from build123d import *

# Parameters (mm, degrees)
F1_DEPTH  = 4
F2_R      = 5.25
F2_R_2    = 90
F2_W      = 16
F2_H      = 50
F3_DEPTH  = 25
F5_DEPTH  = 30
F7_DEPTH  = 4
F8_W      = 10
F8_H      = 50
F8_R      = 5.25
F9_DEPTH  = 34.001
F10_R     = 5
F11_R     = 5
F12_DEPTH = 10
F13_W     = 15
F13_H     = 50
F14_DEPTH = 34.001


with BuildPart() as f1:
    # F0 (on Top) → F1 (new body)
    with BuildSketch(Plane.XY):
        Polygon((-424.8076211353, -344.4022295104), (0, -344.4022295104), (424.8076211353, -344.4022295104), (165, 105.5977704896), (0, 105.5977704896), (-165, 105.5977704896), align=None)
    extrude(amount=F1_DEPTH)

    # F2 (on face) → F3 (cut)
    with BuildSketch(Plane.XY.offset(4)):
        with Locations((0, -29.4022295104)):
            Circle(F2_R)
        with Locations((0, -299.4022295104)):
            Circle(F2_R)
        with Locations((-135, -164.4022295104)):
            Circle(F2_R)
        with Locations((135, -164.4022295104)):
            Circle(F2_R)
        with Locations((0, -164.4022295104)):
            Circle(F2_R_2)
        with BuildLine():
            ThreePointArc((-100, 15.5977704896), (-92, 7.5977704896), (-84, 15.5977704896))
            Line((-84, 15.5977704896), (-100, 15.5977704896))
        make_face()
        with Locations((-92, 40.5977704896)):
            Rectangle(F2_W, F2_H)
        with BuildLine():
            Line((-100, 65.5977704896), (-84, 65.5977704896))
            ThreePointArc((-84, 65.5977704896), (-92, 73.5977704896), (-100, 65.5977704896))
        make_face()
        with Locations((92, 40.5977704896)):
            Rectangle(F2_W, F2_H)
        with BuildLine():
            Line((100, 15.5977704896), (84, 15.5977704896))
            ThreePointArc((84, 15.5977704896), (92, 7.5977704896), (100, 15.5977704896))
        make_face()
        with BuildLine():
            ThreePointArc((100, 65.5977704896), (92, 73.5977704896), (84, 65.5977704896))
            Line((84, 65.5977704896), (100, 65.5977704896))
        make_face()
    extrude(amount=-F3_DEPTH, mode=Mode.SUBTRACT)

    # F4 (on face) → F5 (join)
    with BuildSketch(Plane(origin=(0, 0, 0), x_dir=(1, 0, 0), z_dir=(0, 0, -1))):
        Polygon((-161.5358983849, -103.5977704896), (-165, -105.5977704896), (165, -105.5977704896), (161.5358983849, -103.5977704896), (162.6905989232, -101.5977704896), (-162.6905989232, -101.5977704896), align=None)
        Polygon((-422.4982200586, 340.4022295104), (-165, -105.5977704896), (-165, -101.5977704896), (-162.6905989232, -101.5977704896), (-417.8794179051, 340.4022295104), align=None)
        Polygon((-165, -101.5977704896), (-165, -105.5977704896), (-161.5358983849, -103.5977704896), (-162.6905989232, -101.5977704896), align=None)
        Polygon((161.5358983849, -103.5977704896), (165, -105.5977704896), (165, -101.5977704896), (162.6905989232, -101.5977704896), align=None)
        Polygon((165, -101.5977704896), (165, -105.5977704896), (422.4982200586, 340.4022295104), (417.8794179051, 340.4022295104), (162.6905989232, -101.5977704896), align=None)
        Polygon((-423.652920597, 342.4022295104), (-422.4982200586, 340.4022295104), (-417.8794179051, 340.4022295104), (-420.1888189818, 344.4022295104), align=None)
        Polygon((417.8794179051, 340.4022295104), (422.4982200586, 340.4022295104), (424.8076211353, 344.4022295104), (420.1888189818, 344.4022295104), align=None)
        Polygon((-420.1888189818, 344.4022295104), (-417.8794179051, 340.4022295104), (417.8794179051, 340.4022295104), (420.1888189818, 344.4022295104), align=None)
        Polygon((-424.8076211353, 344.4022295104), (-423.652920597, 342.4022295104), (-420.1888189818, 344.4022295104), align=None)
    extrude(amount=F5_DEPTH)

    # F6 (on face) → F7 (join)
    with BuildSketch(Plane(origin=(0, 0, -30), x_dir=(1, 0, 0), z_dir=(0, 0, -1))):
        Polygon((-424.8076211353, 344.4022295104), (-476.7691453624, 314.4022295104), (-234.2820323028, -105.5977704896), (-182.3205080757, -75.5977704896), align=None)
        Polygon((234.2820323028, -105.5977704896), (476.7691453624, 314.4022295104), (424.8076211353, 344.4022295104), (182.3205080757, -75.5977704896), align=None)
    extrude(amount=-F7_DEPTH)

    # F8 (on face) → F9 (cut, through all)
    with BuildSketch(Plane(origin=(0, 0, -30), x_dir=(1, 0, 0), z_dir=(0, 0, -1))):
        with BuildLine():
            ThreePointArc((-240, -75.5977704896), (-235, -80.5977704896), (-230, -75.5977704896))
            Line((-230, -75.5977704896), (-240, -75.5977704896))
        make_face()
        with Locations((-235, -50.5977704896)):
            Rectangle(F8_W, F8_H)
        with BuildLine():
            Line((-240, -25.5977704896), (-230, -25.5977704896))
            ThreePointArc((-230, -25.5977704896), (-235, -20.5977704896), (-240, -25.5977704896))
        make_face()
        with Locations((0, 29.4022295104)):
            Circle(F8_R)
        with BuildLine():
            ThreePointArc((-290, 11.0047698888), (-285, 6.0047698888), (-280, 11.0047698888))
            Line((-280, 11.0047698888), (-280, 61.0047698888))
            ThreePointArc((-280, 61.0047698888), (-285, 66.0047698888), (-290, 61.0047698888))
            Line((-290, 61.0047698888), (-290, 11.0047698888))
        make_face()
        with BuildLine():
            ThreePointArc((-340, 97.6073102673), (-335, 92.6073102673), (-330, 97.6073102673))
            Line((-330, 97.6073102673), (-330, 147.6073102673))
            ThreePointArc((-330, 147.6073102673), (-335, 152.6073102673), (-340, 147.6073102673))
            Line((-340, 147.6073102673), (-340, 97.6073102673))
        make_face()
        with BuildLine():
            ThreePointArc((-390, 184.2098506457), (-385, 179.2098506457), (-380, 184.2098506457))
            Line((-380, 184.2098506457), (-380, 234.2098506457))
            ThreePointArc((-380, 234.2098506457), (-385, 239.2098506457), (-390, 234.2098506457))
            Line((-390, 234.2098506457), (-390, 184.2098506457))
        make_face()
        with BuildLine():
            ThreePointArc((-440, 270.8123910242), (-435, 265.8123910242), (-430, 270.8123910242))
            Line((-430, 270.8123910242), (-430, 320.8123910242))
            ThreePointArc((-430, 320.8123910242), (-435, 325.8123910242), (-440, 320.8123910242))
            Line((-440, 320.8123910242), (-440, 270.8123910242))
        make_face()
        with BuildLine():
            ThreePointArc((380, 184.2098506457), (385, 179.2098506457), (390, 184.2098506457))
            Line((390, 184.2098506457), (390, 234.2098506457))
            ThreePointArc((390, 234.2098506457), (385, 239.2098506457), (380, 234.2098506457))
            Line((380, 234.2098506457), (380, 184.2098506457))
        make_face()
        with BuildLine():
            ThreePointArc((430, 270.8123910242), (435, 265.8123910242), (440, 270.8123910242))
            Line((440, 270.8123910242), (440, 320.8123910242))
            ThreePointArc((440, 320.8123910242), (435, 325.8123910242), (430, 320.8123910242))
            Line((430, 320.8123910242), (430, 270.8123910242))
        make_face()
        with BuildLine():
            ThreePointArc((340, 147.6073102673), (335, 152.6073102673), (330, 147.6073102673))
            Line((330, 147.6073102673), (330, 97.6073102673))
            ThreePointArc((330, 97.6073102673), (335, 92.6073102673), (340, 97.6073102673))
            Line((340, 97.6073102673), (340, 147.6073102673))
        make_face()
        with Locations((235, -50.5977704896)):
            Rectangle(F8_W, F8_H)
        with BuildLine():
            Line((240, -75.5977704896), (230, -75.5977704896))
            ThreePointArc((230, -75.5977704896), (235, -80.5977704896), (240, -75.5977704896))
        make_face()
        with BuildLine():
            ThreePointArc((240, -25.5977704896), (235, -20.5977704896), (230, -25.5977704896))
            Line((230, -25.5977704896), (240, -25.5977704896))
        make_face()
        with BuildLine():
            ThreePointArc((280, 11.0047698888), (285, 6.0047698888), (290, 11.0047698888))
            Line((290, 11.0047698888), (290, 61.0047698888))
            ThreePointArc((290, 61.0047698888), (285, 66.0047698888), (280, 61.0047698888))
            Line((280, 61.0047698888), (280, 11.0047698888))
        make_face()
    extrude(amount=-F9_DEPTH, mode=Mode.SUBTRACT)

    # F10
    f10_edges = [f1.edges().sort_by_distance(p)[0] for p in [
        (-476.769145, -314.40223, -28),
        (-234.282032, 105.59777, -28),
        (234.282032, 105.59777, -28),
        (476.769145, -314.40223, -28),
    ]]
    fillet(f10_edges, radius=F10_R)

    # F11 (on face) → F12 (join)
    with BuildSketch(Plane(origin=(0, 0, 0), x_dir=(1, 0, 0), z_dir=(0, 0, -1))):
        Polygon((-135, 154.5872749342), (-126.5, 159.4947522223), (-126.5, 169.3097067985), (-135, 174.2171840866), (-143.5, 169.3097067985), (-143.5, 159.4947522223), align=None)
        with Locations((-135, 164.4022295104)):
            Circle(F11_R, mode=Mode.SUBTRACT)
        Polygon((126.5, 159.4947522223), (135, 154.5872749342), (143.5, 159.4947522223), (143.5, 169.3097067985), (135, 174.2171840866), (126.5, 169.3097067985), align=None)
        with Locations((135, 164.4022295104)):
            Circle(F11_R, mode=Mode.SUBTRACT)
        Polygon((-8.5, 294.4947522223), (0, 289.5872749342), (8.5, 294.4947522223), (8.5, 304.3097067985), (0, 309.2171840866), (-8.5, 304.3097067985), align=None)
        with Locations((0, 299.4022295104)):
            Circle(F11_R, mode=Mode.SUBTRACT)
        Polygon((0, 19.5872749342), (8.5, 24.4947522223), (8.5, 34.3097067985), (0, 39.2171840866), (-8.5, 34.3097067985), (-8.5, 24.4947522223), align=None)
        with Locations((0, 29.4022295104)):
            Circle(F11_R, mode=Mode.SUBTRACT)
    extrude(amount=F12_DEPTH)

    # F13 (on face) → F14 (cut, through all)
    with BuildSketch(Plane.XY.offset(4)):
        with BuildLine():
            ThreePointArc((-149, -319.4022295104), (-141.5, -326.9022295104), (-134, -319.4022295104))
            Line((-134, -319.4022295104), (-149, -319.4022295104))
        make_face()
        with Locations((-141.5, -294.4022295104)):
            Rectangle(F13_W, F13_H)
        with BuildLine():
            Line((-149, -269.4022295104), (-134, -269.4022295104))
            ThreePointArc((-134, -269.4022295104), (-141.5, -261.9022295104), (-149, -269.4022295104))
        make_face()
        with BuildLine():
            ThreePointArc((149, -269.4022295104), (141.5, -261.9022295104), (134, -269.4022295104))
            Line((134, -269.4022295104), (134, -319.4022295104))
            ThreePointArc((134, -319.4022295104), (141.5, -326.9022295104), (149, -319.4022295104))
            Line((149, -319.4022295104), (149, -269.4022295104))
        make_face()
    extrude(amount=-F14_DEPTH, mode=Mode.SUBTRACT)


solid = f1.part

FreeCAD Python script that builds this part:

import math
import FreeCAD as App
import Part
import Sketcher
Q = App.Units.Quantity


def edges_at(feature, points):
    """Names of the edges that pass closest to the given points."""
    edges = feature.Shape.Edges
    near = lambda p: min(range(len(edges)), key=lambda i: edges[i].distToShape(Part.Vertex(*p))[0])
    return sorted({f"Edge{near(p) + 1}" for p in points})


def add_polygon(sketch, points):
    """Adds a closed chain of lines whose ends are joined by coincident constraints."""
    first, n = sketch.GeometryCount, len(points)
    for a, b in zip(points, points[1:] + points[:1]):
        sketch.addGeometry(Part.LineSegment(App.Vector(*a, 0), App.Vector(*b, 0)), False)
    for i in range(n):
        sketch.addConstraint(Sketcher.Constraint("Coincident", first + i, 2, first + (i + 1) % n, 1))

doc = App.newDocument("Part")
body = doc.addObject("PartDesign::Body", "Body")

# Sketch on XY plane
sketch1 = body.newObject("Sketcher::SketchObject", "Sketch")
sketch1.AttachmentSupport = (doc.getObject("XY_Plane"), [""])
sketch1.MapMode = "FlatFace"
add_polygon(sketch1, [(-425, -344), (425, -344), (165, 106), (-165, 106)])  # lines 0-3
sketch1.addConstraint([
    Sketcher.Constraint("Horizontal", 0),
    Sketcher.Constraint("Horizontal", 2),
    Sketcher.Constraint("Equal", 1, 3),
    Sketcher.Constraint("DistanceX", 2, 2, 2, 1, 330.0),
    Sketcher.Constraint("Angle", 1, Q("120 deg")),
    Sketcher.Constraint("DistanceX", -1, 1, 1, 2, 165.0),
    Sketcher.Constraint("DistanceY", 0, 2, 1, 2, 450.0),
    Sketcher.Constraint("DistanceY", 0, 2, -1, 1, 344.40223),
])
pad1 = body.newObject("PartDesign::Pad", "Pad")
pad1.Profile = sketch1
pad1.Length = 4

# Sketch on XY plane
sketch2 = body.newObject("Sketcher::SketchObject", "Sketch001")
sketch2.AttachmentSupport = (doc.getObject("XY_Plane"), [""])
sketch2.MapMode = "FlatFace"
sketch2.AttachmentOffset = App.Placement(App.Vector(0, 0, 4), App.Rotation())
sketch2.addGeometry([
    Part.Circle(App.Vector(0, -29, 0), App.Vector(0, 0, 1), 5),  # 0
    Part.Circle(App.Vector(0, -299, 0), App.Vector(0, 0, 1), 5),  # 1
    Part.Circle(App.Vector(-135, -164, 0), App.Vector(0, 0, 1), 5),  # 2
    Part.Circle(App.Vector(135, -164, 0), App.Vector(0, 0, 1), 5),  # 3
    Part.Circle(App.Vector(0, -164, 0), App.Vector(0, 0, 1), 90),  # 4
    Part.ArcOfCircle(Part.Circle(App.Vector(-92, 16, 0), App.Vector(0, 0, 1), 8), math.radians(180), math.radians(360)),  # 5
    Part.LineSegment(App.Vector(-84, 16, 0), App.Vector(-84, 66, 0)),  # 6
    Part.ArcOfCircle(Part.Circle(App.Vector(-92, 66, 0), App.Vector(0, 0, 1), 8), math.radians(0), math.radians(180)),  # 7
    Part.LineSegment(App.Vector(-100, 66, 0), App.Vector(-100, 16, 0)),  # 8
    Part.LineSegment(App.Vector(84, 66, 0), App.Vector(84, 16, 0)),  # 9
    Part.ArcOfCircle(Part.Circle(App.Vector(92, 16, 0), App.Vector(0, 0, 1), 8), math.radians(180), math.radians(360)),  # 10
    Part.LineSegment(App.Vector(100, 16, 0), App.Vector(100, 66, 0)),  # 11
    Part.ArcOfCircle(Part.Circle(App.Vector(92, 66, 0), App.Vector(0, 0, 1), 8), math.radians(0), math.radians(180)),  # 12
], False)
sketch2.addConstraint([
    Sketcher.Constraint("Tangent", 5, 2, 6, 1),
    Sketcher.Constraint("Tangent", 6, 2, 7, 1),
    Sketcher.Constraint("Tangent", 7, 2, 8, 1),
    Sketcher.Constraint("Tangent", 8, 2, 5, 1),
    Sketcher.Constraint("Tangent", 9, 2, 10, 1),
    Sketcher.Constraint("Tangent", 10, 2, 11, 1),
    Sketcher.Constraint("Tangent", 11, 2, 12, 1),
    Sketcher.Constraint("Tangent", 12, 2, 9, 1),
    Sketcher.Constraint("Vertical", 6),
    Sketcher.Constraint("Vertical", 8),
    Sketcher.Constraint("Vertical", 9),
    Sketcher.Constraint("Vertical", 11),
    Sketcher.Constraint("Equal", 0, 1),
    Sketcher.Constraint("Equal", 1, 2),
    Sketcher.Constraint("Equal", 2, 3),
    Sketcher.Constraint("Equal", 7, 10),
    Sketcher.Constraint("Symmetric", 2, 3, 3, 3, -2),
    Sketcher.Constraint("Symmetric", 5, 3, 10, 3, -2),
    Sketcher.Constraint("PointOnObject", 0, 3, -2),
    Sketcher.Constraint("PointOnObject", 1, 3, -2),
    Sketcher.Constraint("PointOnObject", 4, 3, -2),
    Sketcher.Constraint("Horizontal", 3, 3, 4, 3),
    Sketcher.Constraint("Horizontal", 7, 3, 12, 3),
    Sketcher.Constraint("Diameter", 4, 180.0),
    Sketcher.Constraint("Radius", 5, 8.0),
    Sketcher.Constraint("Diameter", 0, 10.5),
    Sketcher.Constraint("DistanceY", 6, 1, 6, 2, 50.0),
    Sketcher.Constraint("DistanceX", 2, 3, -1, 1, 135.0),
    Sketcher.Constraint("DistanceX", 5, 3, -1, 1, 92.0),
    Sketcher.Constraint("DistanceY", 1, 3, 0, 3, 270.0),
    Sketcher.Constraint("DistanceY", 1, 3, 2, 3, 135.0),
    Sketcher.Constraint("DistanceY", 0, 3, 5, 3, 45.0),
    Sketcher.Constraint("DistanceY", 0, 3, -1, 1, 29.40223),
])
pocket1 = body.newObject("PartDesign::Pocket", "Pocket")
pocket1.Profile = sketch2
pocket1.Length = 25

# Sketch on XY plane
sketch3 = body.newObject("Sketcher::SketchObject", "Sketch002")
sketch3.AttachmentSupport = (doc.getObject("XY_Plane"), [""])
sketch3.MapMode = "FlatFace"
add_polygon(sketch3, [(-165, 105.6), (165, 105.6), (422.5, -340.4), (424.8, -344.4), (-424.8, -344.4), (-423.7, -342.4), (-422.5, -340.4)])  # lines 0-6
add_polygon(sketch3, [(417.9, -340.4), (162.7, 101.6), (-162.7, 101.6), (-417.9, -340.4)])  # lines 7-10
sketch3.addConstraint([
    Sketcher.Constraint("Horizontal", 0),
    Sketcher.Constraint("Horizontal", 3),
    Sketcher.Constraint("Horizontal", 8),
    Sketcher.Constraint("Horizontal", 10),
    Sketcher.Constraint("Symmetric", 1, 2, 5, 2, -2),
    Sketcher.Constraint("Parallel", 1, 2),
    Sketcher.Constraint("Parallel", 4, 5),
    Sketcher.Constraint("Parallel", 5, 6),
    Sketcher.Constraint("Parallel", 2, 7),
    Sketcher.Constraint("Parallel", 6, 9),
    Sketcher.Constraint("Horizontal", 5, 2, 9, 2),
    Sketcher.Constraint("Equal", 4, 5),
    Sketcher.Constraint("Equal", 1, 6),
    Sketcher.Constraint("DistanceX", 0, 1, 0, 2, 330.0),
    Sketcher.Constraint("Angle", 1, Q("-60 deg")),
    Sketcher.Constraint("DistanceY", 1, 2, 0, 2, 446.0),
    Sketcher.Constraint("DistanceY", 2, 2, 1, 2, 4.0),
    Sketcher.Constraint("DistanceY", 7, 2, 0, 2, 4.0),
    Sketcher.Constraint("DistanceX", -1, 1, 7, 2, 162.690599),
    Sketcher.Constraint("DistanceX", 8, 2, -1, 1, 162.690599),
    Sketcher.Constraint("DistanceY", -1, 1, 0, 2, 105.59777),
])
pad2 = body.newObject("PartDesign::Pad", "Pad001")
pad2.Profile = sketch3
pad2.Length = 30
pad2.Reversed = True

# Sketch on XY plane
sketch4 = body.newObject("Sketcher::SketchObject", "Sketch003")
sketch4.AttachmentSupport = (doc.getObject("XY_Plane"), [""])
sketch4.MapMode = "FlatFace"
sketch4.AttachmentOffset = App.Placement(App.Vector(0, 0, -30), App.Rotation())
add_polygon(sketch4, [(-425, -344), (-477, -314), (-234, 106), (-182, 76)])  # lines 0-3
add_polygon(sketch4, [(234, 106), (477, -314), (425, -344), (182, 76)])  # lines 4-7
sketch4.addConstraint([
    Sketcher.Constraint("Symmetric", 0, 2, 4, 2, -2),
    Sketcher.Constraint("Symmetric", 3, 2, 5, 2, -2),
    Sketcher.Constraint("Symmetric", 2, 2, 6, 2, -2),
    Sketcher.Constraint("Symmetric", 1, 2, 7, 2, -2),
    Sketcher.Constraint("Perpendicular", 0, 1),
    Sketcher.Constraint("Perpendicular", 1, 2),
    Sketcher.Constraint("Perpendicular", 2, 3),
    Sketcher.Constraint("Angle", 0, Q("150 deg")),
    Sketcher.Constraint("Distance", 0, 60.0),
    Sketcher.Constraint("DistanceY", 0, 2, 1, 2, 420.0),
    Sketcher.Constraint("DistanceY", 0, 2, -1, 1, 314.40223),
    Sketcher.Constraint("DistanceX", 2, 2, -1, 1, 182.320508),
])
pad3 = body.newObject("PartDesign::Pad", "Pad002")
pad3.Profile = sketch4
pad3.Length = 4

# Sketch on XY plane
sketch5 = body.newObject("Sketcher::SketchObject", "Sketch004")
sketch5.AttachmentSupport = (doc.getObject("XY_Plane"), [""])
sketch5.MapMode = "FlatFace"
sketch5.AttachmentOffset = App.Placement(App.Vector(0, 0, -30), App.Rotation())
sketch5.addGeometry([
    Part.ArcOfCircle(Part.Circle(App.Vector(-235, 76, 0), App.Vector(0, 0, 1), 5), math.radians(0), math.radians(180)),  # 0
    Part.LineSegment(App.Vector(-230, 76, 0), App.Vector(-230, 26, 0)),  # 1
    Part.ArcOfCircle(Part.Circle(App.Vector(-235, 26, 0), App.Vector(0, 0, 1), 5), math.radians(180), math.radians(360)),  # 2
    Part.LineSegment(App.Vector(-240, 26, 0), App.Vector(-240, 76, 0)),  # 3
    Part.Circle(App.Vector(0, -29, 0), App.Vector(0, 0, 1), 5),  # 4
    Part.ArcOfCircle(Part.Circle(App.Vector(-285, -11, 0), App.Vector(0, 0, 1), 5), math.radians(0), math.radians(180)),  # 5
    Part.LineSegment(App.Vector(-280, -11, 0), App.Vector(-280, -61, 0)),  # 6
    Part.ArcOfCircle(Part.Circle(App.Vector(-285, -61, 0), App.Vector(0, 0, 1), 5), math.radians(180), math.radians(360)),  # 7
    Part.LineSegment(App.Vector(-290, -61, 0), App.Vector(-290, -11, 0)),  # 8
    Part.ArcOfCircle(Part.Circle(App.Vector(-335, -98, 0), App.Vector(0, 0, 1), 5), math.radians(0), math.radians(180)),  # 9
    Part.LineSegment(App.Vector(-330, -98, 0), App.Vector(-330, -148, 0)),  # 10
    Part.ArcOfCircle(Part.Circle(App.Vector(-335, -148, 0), App.Vector(0, 0, 1), 5), math.radians(180), math.radians(360)),  # 11
    Part.LineSegment(App.Vector(-340, -148, 0), App.Vector(-340, -98, 0)),  # 12
    Part.ArcOfCircle(Part.Circle(App.Vector(-385, -184, 0), App.Vector(0, 0, 1), 5), math.radians(0), math.radians(180)),  # 13
    Part.LineSegment(App.Vector(-380, -184, 0), App.Vector(-380, -234, 0)),  # 14
    Part.ArcOfCircle(Part.Circle(App.Vector(-385, -234, 0), App.Vector(0, 0, 1), 5), math.radians(180), math.radians(360)),  # 15
    Part.LineSegment(App.Vector(-390, -234, 0), App.Vector(-390, -184, 0)),  # 16
    Part.ArcOfCircle(Part.Circle(App.Vector(-435, -271, 0), App.Vector(0, 0, 1), 5), math.radians(0), math.radians(180)),  # 17
    Part.LineSegment(App.Vector(-430, -271, 0), App.Vector(-430, -321, 0)),  # 18
    Part.ArcOfCircle(Part.Circle(App.Vector(-435, -321, 0), App.Vector(0, 0, 1), 5), math.radians(180), math.radians(360)),  # 19
    Part.LineSegment(App.Vector(-440, -321, 0), App.Vector(-440, -271, 0)),  # 20
    Part.ArcOfCircle(Part.Circle(App.Vector(385, -184, 0), App.Vector(0, 0, 1), 5), math.radians(0), math.radians(180)),  # 21
    Part.LineSegment(App.Vector(390, -184, 0), App.Vector(390, -234, 0)),  # 22
    Part.ArcOfCircle(Part.Circle(App.Vector(385, -234, 0), App.Vector(0, 0, 1), 5), math.radians(180), math.radians(360)),  # 23
    Part.LineSegment(App.Vector(380, -234, 0), App.Vector(380, -184, 0)),  # 24
    Part.ArcOfCircle(Part.Circle(App.Vector(435, -271, 0), App.Vector(0, 0, 1), 5), math.radians(0), math.radians(180)),  # 25
    Part.LineSegment(App.Vector(440, -271, 0), App.Vector(440, -321, 0)),  # 26
    Part.ArcOfCircle(Part.Circle(App.Vector(435, -321, 0), App.Vector(0, 0, 1), 5), math.radians(180), math.radians(360)),  # 27
    Part.LineSegment(App.Vector(430, -321, 0), App.Vector(430, -271, 0)),  # 28
    Part.ArcOfCircle(Part.Circle(App.Vector(335, -148, 0), App.Vector(0, 0, 1), 5), math.radians(180), math.radians(360)),  # 29
    Part.LineSegment(App.Vector(330, -148, 0), App.Vector(330, -98, 0)),  # 30
    Part.ArcOfCircle(Part.Circle(App.Vector(335, -98, 0), App.Vector(0, 0, 1), 5), math.radians(0), math.radians(180)),  # 31
    Part.LineSegment(App.Vector(340, -98, 0), App.Vector(340, -148, 0)),  # 32
    Part.LineSegment(App.Vector(230, 26, 0), App.Vector(230, 76, 0)),  # 33
    Part.ArcOfCircle(Part.Circle(App.Vector(235, 76, 0), App.Vector(0, 0, 1), 5), math.radians(0), math.radians(180)),  # 34
    Part.LineSegment(App.Vector(240, 76, 0), App.Vector(240, 26, 0)),  # 35
    Part.ArcOfCircle(Part.Circle(App.Vector(235, 26, 0), App.Vector(0, 0, 1), 5), math.radians(180), math.radians(360)),  # 36
    Part.ArcOfCircle(Part.Circle(App.Vector(285, -11, 0), App.Vector(0, 0, 1), 5), math.radians(0), math.radians(180)),  # 37
    Part.LineSegment(App.Vector(290, -11, 0), App.Vector(290, -61, 0)),  # 38
    Part.ArcOfCircle(Part.Circle(App.Vector(285, -61, 0), App.Vector(0, 0, 1), 5), math.radians(180), math.radians(360)),  # 39
    Part.LineSegment(App.Vector(280, -61, 0), App.Vector(280, -11, 0)),  # 40
], False)
sketch5.addConstraint([
    Sketcher.Constraint("Tangent", 0, 1, 1, 1),
    Sketcher.Constraint("Tangent", 1, 2, 2, 2),
    Sketcher.Constraint("Tangent", 2, 1, 3, 1),
    Sketcher.Constraint("Tangent", 3, 2, 0, 2),
    Sketcher.Constraint("Tangent", 5, 1, 6, 1),
    Sketcher.Constraint("Tangent", 6, 2, 7, 2),
    Sketcher.Constraint("Tangent", 7, 1, 8, 1),
    Sketcher.Constraint("Tangent", 8, 2, 5, 2),
    Sketcher.Constraint("Tangent", 9, 1, 10, 1),
    Sketcher.Constraint("Tangent", 10, 2, 11, 2),
    Sketcher.Constraint("Tangent", 11, 1, 12, 1),
    Sketcher.Constraint("Tangent", 12, 2, 9, 2),
    Sketcher.Constraint("Tangent", 13, 1, 14, 1),
    Sketcher.Constraint("Tangent", 14, 2, 15, 2),
    Sketcher.Constraint("Tangent", 15, 1, 16, 1),
    Sketcher.Constraint("Tangent", 16, 2, 13, 2),
    Sketcher.Constraint("Tangent", 17, 1, 18, 1),
    Sketcher.Constraint("Tangent", 18, 2, 19, 2),
    Sketcher.Constraint("Tangent", 19, 1, 20, 1),
    Sketcher.Constraint("Tangent", 20, 2, 17, 2),
    Sketcher.Constraint("Tangent", 21, 1, 22, 1),
    Sketcher.Constraint("Tangent", 22, 2, 23, 2),
    Sketcher.Constraint("Tangent", 23, 1, 24, 1),
    Sketcher.Constraint("Tangent", 24, 2, 21, 2),
    Sketcher.Constraint("Tangent", 25, 1, 26, 1),
    Sketcher.Constraint("Tangent", 26, 2, 27, 2),
    Sketcher.Constraint("Tangent", 27, 1, 28, 1),
    Sketcher.Constraint("Tangent", 28, 2, 25, 2),
    Sketcher.Constraint("Tangent", 29, 1, 30, 1),
    Sketcher.Constraint("Tangent", 30, 2, 31, 2),
    Sketcher.Constraint("Tangent", 31, 1, 32, 1),
    Sketcher.Constraint("Tangent", 32, 2, 29, 2),
    Sketcher.Constraint("Tangent", 33, 2, 34, 2),
    Sketcher.Constraint("Tangent", 34, 1, 35, 1),
    Sketcher.Constraint("Tangent", 35, 2, 36, 2),
    Sketcher.Constraint("Tangent", 36, 1, 33, 1),
    Sketcher.Constraint("Tangent", 37, 1, 38, 1),
    Sketcher.Constraint("Tangent", 38, 2, 39, 2),
    Sketcher.Constraint("Tangent", 39, 1, 40, 1),
    Sketcher.Constraint("Tangent", 40, 2, 37, 2),
    Sketcher.Constraint("Vertical", 1),
    Sketcher.Constraint("Vertical", 3),
    Sketcher.Constraint("Vertical", 6),
    Sketcher.Constraint("Vertical", 8),
    Sketcher.Constraint("Vertical", 10),
    Sketcher.Constraint("Vertical", 12),
    Sketcher.Constraint("Vertical", 14),
    Sketcher.Constraint("Vertical", 16),
    Sketcher.Constraint("Vertical", 18),
    Sketcher.Constraint("Vertical", 20),
    Sketcher.Constraint("Vertical", 22),
    Sketcher.Constraint("Vertical", 24),
    Sketcher.Constraint("Vertical", 26),
    Sketcher.Constraint("Vertical", 28),
    Sketcher.Constraint("Vertical", 30),
    Sketcher.Constraint("Vertical", 32),
    Sketcher.Constraint("Vertical", 33),
    Sketcher.Constraint("Vertical", 35),
    Sketcher.Constraint("Vertical", 38),
    Sketcher.Constraint("Vertical", 40),
    Sketcher.Constraint("Equal", 2, 5),
    Sketcher.Constraint("Equal", 7, 9),
    Sketcher.Constraint("Equal", 11, 13),
    Sketcher.Constraint("Equal", 15, 17),
    Sketcher.Constraint("Equal", 19, 21),
    Sketcher.Constraint("Equal", 23, 25),
    Sketcher.Constraint("Equal", 27, 29),
    Sketcher.Constraint("Equal", 31, 34),
    Sketcher.Constraint("Equal", 36, 37),
    Sketcher.Constraint("Symmetric", 13, 3, 21, 3, -2),
    Sketcher.Constraint("Symmetric", 17, 3, 25, 3, -2),
    Sketcher.Constraint("Symmetric", 11, 3, 29, 3, -2),
    Sketcher.Constraint("Symmetric", 0, 3, 34, 3, -2),
    Sketcher.Constraint("Symmetric", 5, 3, 37, 3, -2),
    Sketcher.Constraint("PointOnObject", 4, 3, -2),
    Sketcher.Constraint("Horizontal", 15, 3, 23, 3),
    Sketcher.Constraint("Horizontal", 19, 3, 27, 3),
    Sketcher.Constraint("Horizontal", 9, 3, 31, 3),
    Sketcher.Constraint("Horizontal", 2, 3, 36, 3),
    Sketcher.Constraint("Horizontal", 7, 3, 39, 3),
    Sketcher.Constraint("Equal", 3, 6),
    Sketcher.Constraint("Equal", 8, 10),
    Sketcher.Constraint("Equal", 12, 14),
    Sketcher.Constraint("Equal", 16, 18),
    Sketcher.Constraint("Radius", 0, 5.0),
    Sketcher.Constraint("Diameter", 4, 10.5),
    Sketcher.Constraint("DistanceY", 1, 2, 1, 1, 50.0),
    Sketcher.Constraint("DistanceX", 0, 3, -1, 1, 235.0),
    Sketcher.Constraint("DistanceX", 5, 3, -1, 1, 285.0),
    Sketcher.Constraint("DistanceX", 9, 3, -1, 1, 335.0),
    Sketcher.Constraint("DistanceX", 13, 3, -1, 1, 385.0),
    Sketcher.Constraint("DistanceX", 17, 3, -1, 1, 435.0),
    Sketcher.Constraint("DistanceY", -1, 1, 0, 3, 75.59777),
    Sketcher.Constraint("DistanceY", 4, 3, -1, 1, 29.40223),
    Sketcher.Constraint("DistanceY", 5, 3, -1, 1, 11.00477),
    Sketcher.Constraint("DistanceY", 9, 3, -1, 1, 97.60731),
    Sketcher.Constraint("DistanceY", 13, 3, -1, 1, 184.209851),
    Sketcher.Constraint("DistanceY", 17, 3, -1, 1, 270.812391),
])
pocket2 = body.newObject("PartDesign::Pocket", "Pocket001")
pocket2.Profile = sketch5
pocket2.Type = "ThroughAll"
pocket2.Reversed = True
doc.recompute()

fillet = body.newObject("PartDesign::Fillet", "Fillet")
fillet.Base = (pocket2, edges_at(pocket2, [
    (-476.769, -314.402, -28),
    (-234.282, 105.598, -28),
    (234.282, 105.598, -28),
    (476.769, -314.402, -28),
]))
fillet.Radius = 5

# Sketch on XY plane
sketch6 = body.newObject("Sketcher::SketchObject", "Sketch005")
sketch6.AttachmentSupport = (doc.getObject("XY_Plane"), [""])
sketch6.MapMode = "FlatFace"
add_polygon(sketch6, [(-135, -155), (-126, -159), (-126, -169), (-135, -174), (-144, -169), (-144, -159)])  # lines 0-5
sketch6.addGeometry(Part.Circle(App.Vector(-135, -164, 0), App.Vector(0, 0, 1), 5), False)  # 6
add_polygon(sketch6, [(126, -159), (135, -155), (144, -159), (144, -169), (135, -174), (126, -169)])  # lines 7-12
sketch6.addGeometry(Part.Circle(App.Vector(135, -164, 0), App.Vector(0, 0, 1), 5), False)  # 13
add_polygon(sketch6, [(-8, -294), (0, -290), (8, -294), (8, -304), (0, -309), (-8, -304)])  # lines 14-19
sketch6.addGeometry(Part.Circle(App.Vector(0, -299, 0), App.Vector(0, 0, 1), 5), False)  # 20
add_polygon(sketch6, [(0, -20), (8, -24), (8, -34), (0, -39), (-8, -34), (-8, -24)])  # lines 21-26
sketch6.addGeometry(Part.Circle(App.Vector(0, -29, 0), App.Vector(0, 0, 1), 5), False)  # 27
sketch6.addConstraint([
    Sketcher.Constraint("Vertical", 1),
    Sketcher.Constraint("Vertical", 4),
    Sketcher.Constraint("Vertical", 9),
    Sketcher.Constraint("Vertical", 12),
    Sketcher.Constraint("Vertical", 16),
    Sketcher.Constraint("Vertical", 19),
    Sketcher.Constraint("Vertical", 22),
    Sketcher.Constraint("Vertical", 25),
    Sketcher.Constraint("Equal", 6, 13),
    Sketcher.Constraint("Equal", 13, 20),
    Sketcher.Constraint("Equal", 20, 27),
    Sketcher.Constraint("Symmetric", 6, 3, 13, 3, -2),
    Sketcher.Constraint("Symmetric", 5, 2, 7, 2, -2),
    Sketcher.Constraint("Symmetric", 4, 2, 8, 2, -2),
    Sketcher.Constraint("Symmetric", 2, 2, 10, 2, -2),
    Sketcher.Constraint("Symmetric", 1, 2, 11, 2, -2),
    Sketcher.Constraint("Symmetric", 16, 2, 18, 2, -2),
    Sketcher.Constraint("Symmetric", 22, 2, 24, 2, -2),
    Sketcher.Constraint("PointOnObject", 20, 3, -2),
    Sketcher.Constraint("PointOnObject", 27, 3, -2),
    Sketcher.Constraint("PointOnObject", 14, 2, -2),
    Sketcher.Constraint("PointOnObject", 17, 2, -2),
    Sketcher.Constraint("PointOnObject", 23, 2, -2),
    Sketcher.Constraint("PointOnObject", 26, 2, -2),
    Sketcher.Constraint("Parallel", 0, 3),
    Sketcher.Constraint("Parallel", 2, 5),
    Sketcher.Constraint("Parallel", 5, 7),
    Sketcher.Constraint("Parallel", 3, 8),
    Sketcher.Constraint("Parallel", 7, 10),
    Sketcher.Constraint("Parallel", 10, 14),
    Sketcher.Constraint("Parallel", 11, 15),
    Sketcher.Constraint("Parallel", 14, 17),
    Sketcher.Constraint("Parallel", 18, 21),
    Sketcher.Constraint("Parallel", 17, 23),
    Sketcher.Constraint("Parallel", 23, 26),
    Sketcher.Constraint("Horizontal", 1, 2, 3, 2),
    Sketcher.Constraint("Horizontal", 0, 2, 4, 2),
    Sketcher.Constraint("Vertical", 6, 3, 2, 2),
    Sketcher.Constraint("Vertical", 16, 2, 21, 2),
    Sketcher.Constraint("Equal", 12, 16),
    Sketcher.Constraint("Equal", 19, 22),
    Sketcher.Constraint("Equal", 11, 14),
    Sketcher.Constraint("Diameter", 6, 10.0),
    Sketcher.Constraint("Angle", 0, Q("-30 deg")),
    Sketcher.Constraint("DistanceX", 6, 3, -1, 1, 135.0),
    Sketcher.Constraint("DistanceY", 20, 3, 6, 3, 135.0),
    Sketcher.Constraint("DistanceY", 6, 3, 27, 3, 135.0),
    Sketcher.Constraint("DistanceX", 3, 2, 1, 2, 17.0),
    Sketcher.Constraint("DistanceY", 15, 2, 12, 2, 135.0),
    Sketcher.Constraint("DistanceY", 12, 2, 21, 2, 135.0),
    Sketcher.Constraint("DistanceY", 1, 2, 1, 1, 9.814955),
    Sketcher.Constraint("DistanceY", 6, 3, -1, 1, 164.40223),
    Sketcher.Constraint("DistanceY", 0, 2, -1, 1, 159.494752),
])
pad4 = body.newObject("PartDesign::Pad", "Pad003")
pad4.Profile = sketch6
pad4.Length = 10
pad4.Reversed = True

# Sketch on XY plane
sketch7 = body.newObject("Sketcher::SketchObject", "Sketch006")
sketch7.AttachmentSupport = (doc.getObject("XY_Plane"), [""])
sketch7.MapMode = "FlatFace"
sketch7.AttachmentOffset = App.Placement(App.Vector(0, 0, 4), App.Rotation())
sketch7.addGeometry([
    Part.ArcOfCircle(Part.Circle(App.Vector(-142, -319, 0), App.Vector(0, 0, 1), 8), math.radians(180), math.radians(360)),  # 0
    Part.LineSegment(App.Vector(-134, -319, 0), App.Vector(-134, -269, 0)),  # 1
    Part.ArcOfCircle(Part.Circle(App.Vector(-142, -269, 0), App.Vector(0, 0, 1), 8), math.radians(0), math.radians(180)),  # 2
    Part.LineSegment(App.Vector(-149, -269, 0), App.Vector(-149, -319, 0)),  # 3
    Part.ArcOfCircle(Part.Circle(App.Vector(142, -269, 0), App.Vector(0, 0, 1), 8), math.radians(0), math.radians(180)),  # 4
    Part.LineSegment(App.Vector(134, -269, 0), App.Vector(134, -319, 0)),  # 5
    Part.ArcOfCircle(Part.Circle(App.Vector(142, -319, 0), App.Vector(0, 0, 1), 8), math.radians(180), math.radians(360)),  # 6
    Part.LineSegment(App.Vector(149, -319, 0), App.Vector(149, -269, 0)),  # 7
], False)
sketch7.addConstraint([
    Sketcher.Constraint("Tangent", 0, 2, 1, 1),
    Sketcher.Constraint("Tangent", 1, 2, 2, 1),
    Sketcher.Constraint("Tangent", 2, 2, 3, 1),
    Sketcher.Constraint("Tangent", 3, 2, 0, 1),
    Sketcher.Constraint("Tangent", 4, 2, 5, 1),
    Sketcher.Constraint("Tangent", 5, 2, 6, 1),
    Sketcher.Constraint("Tangent", 6, 2, 7, 1),
    Sketcher.Constraint("Tangent", 7, 2, 4, 1),
    Sketcher.Constraint("Vertical", 1),
    Sketcher.Constraint("Vertical", 3),
    Sketcher.Constraint("Vertical", 5),
    Sketcher.Constraint("Vertical", 7),
    Sketcher.Constraint("Equal", 2, 4),
    Sketcher.Constraint("Symmetric", 2, 3, 4, 3, -2),
    Sketcher.Constraint("Horizontal", 0, 3, 6, 3),
    Sketcher.Constraint("Radius", 0, 7.5),
    Sketcher.Constraint("DistanceY", 1, 1, 1, 2, 50.0),
    Sketcher.Constraint("DistanceX", 0, 2, -1, 1, 134.0),
    Sketcher.Constraint("DistanceY", 0, 3, -1, 1, 319.40223),
])
pocket3 = body.newObject("PartDesign::Pocket", "Pocket002")
pocket3.Profile = sketch7
pocket3.Type = "ThroughAll"

doc.recompute()
